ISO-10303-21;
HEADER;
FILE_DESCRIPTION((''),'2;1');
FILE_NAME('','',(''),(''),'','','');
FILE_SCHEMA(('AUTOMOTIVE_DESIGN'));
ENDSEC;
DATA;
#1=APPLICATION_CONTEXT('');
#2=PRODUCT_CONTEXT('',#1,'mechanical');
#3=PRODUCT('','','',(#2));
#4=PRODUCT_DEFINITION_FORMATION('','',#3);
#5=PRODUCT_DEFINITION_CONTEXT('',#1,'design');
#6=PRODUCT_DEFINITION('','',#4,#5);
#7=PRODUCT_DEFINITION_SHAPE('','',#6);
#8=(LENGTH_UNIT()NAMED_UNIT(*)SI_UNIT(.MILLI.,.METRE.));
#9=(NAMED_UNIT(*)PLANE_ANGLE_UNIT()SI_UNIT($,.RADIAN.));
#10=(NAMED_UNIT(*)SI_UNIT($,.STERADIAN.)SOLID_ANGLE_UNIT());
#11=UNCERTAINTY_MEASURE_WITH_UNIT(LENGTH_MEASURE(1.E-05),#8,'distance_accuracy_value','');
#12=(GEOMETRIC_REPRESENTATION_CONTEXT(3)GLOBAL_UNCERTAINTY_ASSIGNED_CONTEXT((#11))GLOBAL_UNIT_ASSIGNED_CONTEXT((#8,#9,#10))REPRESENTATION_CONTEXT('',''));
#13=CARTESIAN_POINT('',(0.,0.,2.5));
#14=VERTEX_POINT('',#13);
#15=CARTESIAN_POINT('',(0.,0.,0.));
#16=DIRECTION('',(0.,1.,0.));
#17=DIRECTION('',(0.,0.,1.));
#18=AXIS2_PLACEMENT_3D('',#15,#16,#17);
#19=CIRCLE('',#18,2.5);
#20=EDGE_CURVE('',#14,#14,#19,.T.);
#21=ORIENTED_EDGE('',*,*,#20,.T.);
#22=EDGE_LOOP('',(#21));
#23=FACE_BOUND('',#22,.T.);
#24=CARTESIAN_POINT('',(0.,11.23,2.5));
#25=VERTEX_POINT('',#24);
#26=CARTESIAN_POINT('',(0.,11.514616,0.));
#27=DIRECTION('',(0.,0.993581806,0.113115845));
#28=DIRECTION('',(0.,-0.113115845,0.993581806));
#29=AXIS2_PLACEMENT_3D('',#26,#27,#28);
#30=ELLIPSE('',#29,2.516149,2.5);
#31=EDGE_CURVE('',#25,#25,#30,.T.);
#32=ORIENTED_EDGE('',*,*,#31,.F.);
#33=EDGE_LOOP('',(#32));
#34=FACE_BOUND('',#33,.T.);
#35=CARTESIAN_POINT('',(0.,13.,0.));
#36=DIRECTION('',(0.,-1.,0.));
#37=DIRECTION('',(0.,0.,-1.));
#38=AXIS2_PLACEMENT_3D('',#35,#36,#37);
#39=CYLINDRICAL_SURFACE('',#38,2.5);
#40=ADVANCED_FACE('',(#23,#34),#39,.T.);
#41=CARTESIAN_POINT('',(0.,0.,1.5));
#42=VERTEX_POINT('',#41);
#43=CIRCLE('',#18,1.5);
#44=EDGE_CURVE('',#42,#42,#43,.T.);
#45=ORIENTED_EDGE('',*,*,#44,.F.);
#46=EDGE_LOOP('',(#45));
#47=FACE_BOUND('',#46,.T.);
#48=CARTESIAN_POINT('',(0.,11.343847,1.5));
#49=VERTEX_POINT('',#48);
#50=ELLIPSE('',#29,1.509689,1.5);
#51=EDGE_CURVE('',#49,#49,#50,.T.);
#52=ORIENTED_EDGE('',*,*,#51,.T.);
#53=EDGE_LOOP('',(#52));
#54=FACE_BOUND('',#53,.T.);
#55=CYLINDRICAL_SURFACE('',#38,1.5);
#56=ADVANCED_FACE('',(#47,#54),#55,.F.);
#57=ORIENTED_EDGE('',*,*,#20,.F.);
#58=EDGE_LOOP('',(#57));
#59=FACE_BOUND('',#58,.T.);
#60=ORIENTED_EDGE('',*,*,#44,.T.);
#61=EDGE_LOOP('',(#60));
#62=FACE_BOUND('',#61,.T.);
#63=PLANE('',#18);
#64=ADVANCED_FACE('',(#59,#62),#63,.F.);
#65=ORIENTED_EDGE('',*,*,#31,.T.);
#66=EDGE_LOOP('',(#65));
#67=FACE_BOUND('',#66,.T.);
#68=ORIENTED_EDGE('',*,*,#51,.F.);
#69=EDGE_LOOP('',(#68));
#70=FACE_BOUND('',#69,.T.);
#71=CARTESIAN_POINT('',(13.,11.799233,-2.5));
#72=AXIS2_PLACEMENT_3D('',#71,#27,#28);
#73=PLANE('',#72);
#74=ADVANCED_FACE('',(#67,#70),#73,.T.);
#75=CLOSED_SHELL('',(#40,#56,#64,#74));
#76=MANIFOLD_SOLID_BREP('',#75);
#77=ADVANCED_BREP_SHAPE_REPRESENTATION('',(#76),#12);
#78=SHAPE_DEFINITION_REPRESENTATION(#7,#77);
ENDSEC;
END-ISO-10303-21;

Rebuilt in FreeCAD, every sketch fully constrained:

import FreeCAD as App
import Part
import Sketcher


def add_polygon(sketch, points):
    """Adds a closed chain of lines whose ends are joined by coincident constraints."""
    first, n = sketch.GeometryCount, len(points)
    for a, b in zip(points, points[1:] + points[:1]):
        sketch.addGeometry(Part.LineSegment(App.Vector(*a, 0), App.Vector(*b, 0)), False)
    for i in range(n):
        sketch.addConstraint(Sketcher.Constraint("Coincident", first + i, 2, first + (i + 1) % n, 1))

doc = App.newDocument("Part")
body = doc.addObject("PartDesign::Body", "Body")

# Sketch on XZ plane
sketch1 = doc.addObject("Sketcher::SketchObject", "Sketch")
body.addObject(sketch1)
sketch1.AttachmentSupport = (doc.XZ_Plane, [""])
sketch1.MapMode = "FlatFace"
sketch1.addGeometry([
    Part.Circle(App.Vector(0, 0, 0), App.Vector(0, 0, 1), 2.5),
    Part.Circle(App.Vector(0, 0, 0), App.Vector(0, 0, 1), 1.5),
], False)
sketch1.addConstraint([
    Sketcher.Constraint("Coincident", 0, 3, -1, 1),
    Sketcher.Constraint("Coincident", 1, 3, -1, 1),
    Sketcher.Constraint("Diameter", 0, 5.0),
    Sketcher.Constraint("Diameter", 1, 3.0),
])
pad1 = doc.addObject("PartDesign::Pad", "Pad")
body.addObject(pad1)
pad1.Profile = sketch1
pad1.Length = 13
pad1.Reversed = True

# Sketch on YZ plane
sketch2 = doc.addObject("Sketcher::SketchObject", "Sketch001")
body.addObject(sketch2)
sketch2.AttachmentSupport = (doc.YZ_Plane, [""])
sketch2.MapMode = "FlatFace"
add_polygon(sketch2, [(11.2, 2.5), (11.8, -2.5), (13, -2.5), (13, 2.5)])  # lines 0-3
sketch2.addConstraint([
    Sketcher.Constraint("Horizontal", 1),
    Sketcher.Constraint("Vertical", 2),
    Sketcher.Constraint("Horizontal", 3),
    Sketcher.Constraint("DistanceY", 2, 1, 2, 2, 5.0),
    Sketcher.Constraint("DistanceX", -1, 1, 1, 2, 13.0),
    Sketcher.Constraint("DistanceX", 3, 2, 3, 1, 1.77),
    Sketcher.Constraint("DistanceY", 0, 2, -1, 1, 2.5),
    Sketcher.Constraint("Distance", 0, 5.032298),
])
pocket1 = doc.addObject("PartDesign::Pocket", "Pocket")
body.addObject(pocket1)
pocket1.Profile = sketch2
pocket1.Type = "ThroughAll"
pocket1.Midplane = True

doc.recompute()
